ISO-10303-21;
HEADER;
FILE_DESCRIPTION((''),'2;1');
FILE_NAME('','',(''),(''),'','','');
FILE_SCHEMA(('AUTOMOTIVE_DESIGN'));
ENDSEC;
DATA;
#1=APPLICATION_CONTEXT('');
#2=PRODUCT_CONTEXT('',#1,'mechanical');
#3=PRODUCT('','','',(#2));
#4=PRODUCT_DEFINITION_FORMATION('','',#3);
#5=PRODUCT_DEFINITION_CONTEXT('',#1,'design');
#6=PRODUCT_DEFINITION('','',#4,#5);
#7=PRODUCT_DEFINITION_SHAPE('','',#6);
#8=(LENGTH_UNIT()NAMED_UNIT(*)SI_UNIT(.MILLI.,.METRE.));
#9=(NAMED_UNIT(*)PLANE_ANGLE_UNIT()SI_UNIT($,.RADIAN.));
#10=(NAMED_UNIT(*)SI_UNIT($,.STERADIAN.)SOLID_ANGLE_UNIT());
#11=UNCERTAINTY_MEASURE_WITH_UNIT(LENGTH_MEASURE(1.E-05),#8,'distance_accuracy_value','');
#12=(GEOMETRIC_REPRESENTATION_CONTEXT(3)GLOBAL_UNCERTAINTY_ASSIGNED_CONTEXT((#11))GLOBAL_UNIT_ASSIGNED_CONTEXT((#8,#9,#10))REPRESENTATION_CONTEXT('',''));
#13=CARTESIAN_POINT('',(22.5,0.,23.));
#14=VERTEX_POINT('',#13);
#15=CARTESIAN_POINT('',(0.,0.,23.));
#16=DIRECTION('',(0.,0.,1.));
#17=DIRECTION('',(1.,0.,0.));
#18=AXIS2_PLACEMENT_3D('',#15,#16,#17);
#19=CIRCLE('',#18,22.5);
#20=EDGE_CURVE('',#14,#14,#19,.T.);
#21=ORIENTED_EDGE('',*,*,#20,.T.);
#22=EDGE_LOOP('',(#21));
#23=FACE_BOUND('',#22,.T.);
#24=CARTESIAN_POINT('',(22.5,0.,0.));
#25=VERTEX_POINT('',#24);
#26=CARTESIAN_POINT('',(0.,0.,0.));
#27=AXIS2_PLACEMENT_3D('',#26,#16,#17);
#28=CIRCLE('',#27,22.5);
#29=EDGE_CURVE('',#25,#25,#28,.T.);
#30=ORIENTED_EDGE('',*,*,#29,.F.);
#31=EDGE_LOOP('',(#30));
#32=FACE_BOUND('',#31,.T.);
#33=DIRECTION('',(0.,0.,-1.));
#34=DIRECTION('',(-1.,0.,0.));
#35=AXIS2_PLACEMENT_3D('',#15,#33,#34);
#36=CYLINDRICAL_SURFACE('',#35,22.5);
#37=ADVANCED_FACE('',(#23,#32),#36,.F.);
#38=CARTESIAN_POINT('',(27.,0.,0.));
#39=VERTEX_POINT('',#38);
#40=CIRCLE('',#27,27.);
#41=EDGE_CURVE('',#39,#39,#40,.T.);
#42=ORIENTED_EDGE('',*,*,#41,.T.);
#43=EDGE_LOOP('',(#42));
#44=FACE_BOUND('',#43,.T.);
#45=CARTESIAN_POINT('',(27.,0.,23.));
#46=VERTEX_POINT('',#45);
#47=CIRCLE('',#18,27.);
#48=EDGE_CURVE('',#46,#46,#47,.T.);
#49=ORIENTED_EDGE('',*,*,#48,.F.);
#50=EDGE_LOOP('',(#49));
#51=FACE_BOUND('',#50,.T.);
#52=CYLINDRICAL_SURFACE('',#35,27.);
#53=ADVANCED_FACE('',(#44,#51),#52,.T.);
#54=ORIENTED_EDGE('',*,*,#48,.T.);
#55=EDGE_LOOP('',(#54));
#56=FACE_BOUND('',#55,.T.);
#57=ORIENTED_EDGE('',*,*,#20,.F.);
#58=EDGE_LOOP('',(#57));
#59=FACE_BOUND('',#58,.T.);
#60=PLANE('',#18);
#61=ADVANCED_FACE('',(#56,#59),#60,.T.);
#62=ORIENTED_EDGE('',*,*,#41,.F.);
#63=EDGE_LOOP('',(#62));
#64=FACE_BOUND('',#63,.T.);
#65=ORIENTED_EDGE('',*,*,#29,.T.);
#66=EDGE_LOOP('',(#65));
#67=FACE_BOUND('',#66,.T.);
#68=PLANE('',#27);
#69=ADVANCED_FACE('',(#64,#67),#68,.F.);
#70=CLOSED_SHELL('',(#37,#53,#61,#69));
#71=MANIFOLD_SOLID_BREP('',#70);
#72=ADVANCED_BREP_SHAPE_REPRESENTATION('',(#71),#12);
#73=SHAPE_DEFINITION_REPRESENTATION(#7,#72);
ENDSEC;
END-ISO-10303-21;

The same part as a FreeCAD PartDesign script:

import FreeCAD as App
import Part
import Sketcher

V = App.Vector

doc = App.newDocument("Part")
body = doc.addObject("PartDesign::Body", "Body")

sketch1 = body.newObject("Sketcher::SketchObject", "Sketch")
sketch1.AttachmentSupport = (doc.getObject("XY_Plane"), [""])
sketch1.MapMode = "FlatFace"
sketch1.addGeometry([
    Part.Circle(V(0, 0, 0), V(0, 0, 1), 27),
    Part.Circle(V(0, 0, 0), V(0, 0, 1), 22.5),
], False)
sketch1.addConstraint([
    Sketcher.Constraint("Coincident", 0, 3, -1, 1),
    Sketcher.Constraint("Coincident", 1, 3, -1, 1),
    Sketcher.Constraint("Diameter", 0, 54.0),
    Sketcher.Constraint("Diameter", 1, 45.0),
])
pad1 = body.newObject("PartDesign::Pad", "Pad")
pad1.Profile = sketch1
pad1.Length = 23

doc.recompute()
